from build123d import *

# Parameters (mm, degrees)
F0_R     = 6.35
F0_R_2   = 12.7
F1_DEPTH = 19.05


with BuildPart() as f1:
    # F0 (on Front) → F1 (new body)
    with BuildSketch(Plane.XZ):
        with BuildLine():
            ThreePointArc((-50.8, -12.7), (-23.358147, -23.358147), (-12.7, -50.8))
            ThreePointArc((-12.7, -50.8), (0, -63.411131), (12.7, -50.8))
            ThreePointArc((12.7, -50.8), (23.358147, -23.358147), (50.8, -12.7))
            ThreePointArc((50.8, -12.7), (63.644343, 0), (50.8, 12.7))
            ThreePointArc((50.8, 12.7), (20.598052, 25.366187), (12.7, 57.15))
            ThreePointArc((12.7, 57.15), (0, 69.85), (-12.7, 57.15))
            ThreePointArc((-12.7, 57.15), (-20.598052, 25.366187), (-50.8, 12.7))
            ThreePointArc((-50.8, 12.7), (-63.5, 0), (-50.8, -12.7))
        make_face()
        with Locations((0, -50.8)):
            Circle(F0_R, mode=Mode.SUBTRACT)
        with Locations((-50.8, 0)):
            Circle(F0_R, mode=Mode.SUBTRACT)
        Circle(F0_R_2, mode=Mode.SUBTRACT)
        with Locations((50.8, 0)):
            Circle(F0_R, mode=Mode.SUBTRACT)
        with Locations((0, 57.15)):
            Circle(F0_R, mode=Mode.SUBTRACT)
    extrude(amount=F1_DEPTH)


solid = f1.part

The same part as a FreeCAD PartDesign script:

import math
import FreeCAD as App
import Part
import Sketcher

V = App.Vector
Q = App.Units.Quantity

doc = App.newDocument("Part")
body = doc.addObject("PartDesign::Body", "Body")

# Sketch on XZ plane
sketch1 = doc.addObject("Sketcher::SketchObject", "Sketch")
body.addObject(sketch1)
sketch1.AttachmentSupport = (doc.XZ_Plane, [""])
sketch1.MapMode = "FlatFace"
sketch1.addGeometry(Part.ArcOfCircle(Part.Circle(V(-49.176384, -49.176384, 0), V(0, 0, 1), 36.512501), math.radians(-2.548635), math.radians(92.548635)), False)
sketch1.addGeometry(Part.ArcOfCircle(Part.Circle(V(0, -50.710818, 0), V(0, 0, 1), 12.700313), math.radians(-179.597663), math.radians(-0.402337)), False)
sketch1.addGeometry(Part.ArcOfCircle(Part.Circle(V(49.176384, -49.176384, 0), V(0, 0, 1), 36.512501), math.radians(87.451365), math.radians(182.548635)), False)
sketch1.addGeometry(Part.ArcOfCircle(Part.Circle(V(50.943532, 0, 0), V(0, 0, 1), 12.700811), math.radians(-90.647514), math.radians(90.647514)), False)
sketch1.addGeometry(Part.ArcOfCircle(Part.Circle(V(48.320409, 49.128207, 0), V(0, 0, 1), 36.5125), math.radians(167.308593), math.radians(273.893997)), False)
sketch1.addGeometry(Part.ArcOfCircle(Part.Circle(V(0, 57.15, 0), V(0, 0, 1), 12.7), math.radians(0), math.radians(180)), False)
sketch1.addGeometry(Part.ArcOfCircle(Part.Circle(V(-48.320409, 49.128207, 0), V(0, 0, 1), 36.5125), math.radians(-93.893997), math.radians(12.691407)), False)
sketch1.addGeometry(Part.ArcOfCircle(Part.Circle(V(-50.8, 0, 0), V(0, 0, 1), 12.7), math.radians(90), math.radians(270)), False)
sketch1.addGeometry(Part.Circle(V(-50.8, 0, 0), V(0, 0, 1), 6.35), False)
sketch1.addGeometry(Part.Circle(V(0, -50.8, 0), V(0, 0, 1), 6.35), False)
sketch1.addGeometry(Part.Circle(V(0, 0, 0), V(0, 0, 1), 12.7), False)
sketch1.addGeometry(Part.Circle(V(50.8, 0, 0), V(0, 0, 1), 6.35), False)
sketch1.addGeometry(Part.Circle(V(0, 57.15, 0), V(0, 0, 1), 6.35), False)
sketch1.addConstraint(Sketcher.Constraint("Coincident", 0, 1, 1, 1))
sketch1.addConstraint(Sketcher.Constraint("Coincident", 1, 2, 2, 2))
sketch1.addConstraint(Sketcher.Constraint("Coincident", 2, 1, 3, 1))
sketch1.addConstraint(Sketcher.Constraint("Coincident", 3, 2, 4, 2))
sketch1.addConstraint(Sketcher.Constraint("Coincident", 4, 1, 5, 1))
sketch1.addConstraint(Sketcher.Constraint("Coincident", 5, 2, 6, 2))
sketch1.addConstraint(Sketcher.Constraint("Coincident", 6, 1, 7, 1))
sketch1.addConstraint(Sketcher.Constraint("Coincident", 7, 2, 0, 2))
sketch1.addConstraint(Sketcher.Constraint("Coincident", 10, 3, -1, 1))
sketch1.addConstraint(Sketcher.Constraint("Coincident", 8, 3, 7, 3))
sketch1.addConstraint(Sketcher.Constraint("Coincident", 12, 3, 5, 3))
sketch1.addConstraint(Sketcher.Constraint("Equal", 0, 2))
sketch1.addConstraint(Sketcher.Constraint("Equal", 2, 4))
sketch1.addConstraint(Sketcher.Constraint("Equal", 4, 6))
sketch1.addConstraint(Sketcher.Constraint("Equal", 5, 7))
sketch1.addConstraint(Sketcher.Constraint("Equal", 8, 9))
sketch1.addConstraint(Sketcher.Constraint("Equal", 7, 10))
sketch1.addConstraint(Sketcher.Constraint("Equal", 9, 11))
sketch1.addConstraint(Sketcher.Constraint("Equal", 11, 12))
sketch1.addConstraint(Sketcher.Constraint("Symmetric", 7, 3, 11, 3, -1, 1))
sketch1.addConstraint(Sketcher.Constraint("Symmetric", 2, 1, 6, 1, -1, 1))
sketch1.addConstraint(Sketcher.Constraint("Symmetric", 3, 2, 7, 2, -1, 1))
sketch1.addConstraint(Sketcher.Constraint("Symmetric", 0, 3, 2, 3, -2))
sketch1.addConstraint(Sketcher.Constraint("Symmetric", 4, 3, 6, 3, -2))
sketch1.addConstraint(Sketcher.Constraint("PointOnObject", 1, 3, -2))
sketch1.addConstraint(Sketcher.Constraint("PointOnObject", 5, 3, -2))
sketch1.addConstraint(Sketcher.Constraint("PointOnObject", 9, 3, -2))
sketch1.addConstraint(Sketcher.Constraint("Horizontal", 9, 3, 0, 1))
sketch1.addConstraint(Sketcher.Constraint("Horizontal", 12, 3, 4, 1))
sketch1.addConstraint(Sketcher.Constraint("Vertical", 11, 3, 2, 1))
sketch1.addConstraint(Sketcher.Constraint("Vertical", 1, 2, 4, 1))
sketch1.addConstraint(Sketcher.Constraint("Diameter", 10, Q("1 in")))
sketch1.addConstraint(Sketcher.Constraint("Diameter", 8, Q("0.5 in")))
sketch1.addConstraint(Sketcher.Constraint("DistanceX", 7, 3, -1, 1, Q("2 in")))
sketch1.addConstraint(Sketcher.Constraint("DistanceY", 9, 3, -1, 1, Q("2 in")))
sketch1.addConstraint(Sketcher.Constraint("Radius", 0, Q("1.4375 in")))
sketch1.addConstraint(Sketcher.Constraint("DistanceY", -1, 1, 5, 3, Q("2.25 in")))
sketch1.addConstraint(Sketcher.Constraint("Radius", 3, Q("12.700811 mm")))
sketch1.addConstraint(Sketcher.Constraint("Radius", 1, Q("12.700313 mm")))
pad1 = doc.addObject("PartDesign::Pad", "Pad")
body.addObject(pad1)
pad1.Profile = sketch1
pad1.Length = Q("0.75 in")

doc.recompute()
